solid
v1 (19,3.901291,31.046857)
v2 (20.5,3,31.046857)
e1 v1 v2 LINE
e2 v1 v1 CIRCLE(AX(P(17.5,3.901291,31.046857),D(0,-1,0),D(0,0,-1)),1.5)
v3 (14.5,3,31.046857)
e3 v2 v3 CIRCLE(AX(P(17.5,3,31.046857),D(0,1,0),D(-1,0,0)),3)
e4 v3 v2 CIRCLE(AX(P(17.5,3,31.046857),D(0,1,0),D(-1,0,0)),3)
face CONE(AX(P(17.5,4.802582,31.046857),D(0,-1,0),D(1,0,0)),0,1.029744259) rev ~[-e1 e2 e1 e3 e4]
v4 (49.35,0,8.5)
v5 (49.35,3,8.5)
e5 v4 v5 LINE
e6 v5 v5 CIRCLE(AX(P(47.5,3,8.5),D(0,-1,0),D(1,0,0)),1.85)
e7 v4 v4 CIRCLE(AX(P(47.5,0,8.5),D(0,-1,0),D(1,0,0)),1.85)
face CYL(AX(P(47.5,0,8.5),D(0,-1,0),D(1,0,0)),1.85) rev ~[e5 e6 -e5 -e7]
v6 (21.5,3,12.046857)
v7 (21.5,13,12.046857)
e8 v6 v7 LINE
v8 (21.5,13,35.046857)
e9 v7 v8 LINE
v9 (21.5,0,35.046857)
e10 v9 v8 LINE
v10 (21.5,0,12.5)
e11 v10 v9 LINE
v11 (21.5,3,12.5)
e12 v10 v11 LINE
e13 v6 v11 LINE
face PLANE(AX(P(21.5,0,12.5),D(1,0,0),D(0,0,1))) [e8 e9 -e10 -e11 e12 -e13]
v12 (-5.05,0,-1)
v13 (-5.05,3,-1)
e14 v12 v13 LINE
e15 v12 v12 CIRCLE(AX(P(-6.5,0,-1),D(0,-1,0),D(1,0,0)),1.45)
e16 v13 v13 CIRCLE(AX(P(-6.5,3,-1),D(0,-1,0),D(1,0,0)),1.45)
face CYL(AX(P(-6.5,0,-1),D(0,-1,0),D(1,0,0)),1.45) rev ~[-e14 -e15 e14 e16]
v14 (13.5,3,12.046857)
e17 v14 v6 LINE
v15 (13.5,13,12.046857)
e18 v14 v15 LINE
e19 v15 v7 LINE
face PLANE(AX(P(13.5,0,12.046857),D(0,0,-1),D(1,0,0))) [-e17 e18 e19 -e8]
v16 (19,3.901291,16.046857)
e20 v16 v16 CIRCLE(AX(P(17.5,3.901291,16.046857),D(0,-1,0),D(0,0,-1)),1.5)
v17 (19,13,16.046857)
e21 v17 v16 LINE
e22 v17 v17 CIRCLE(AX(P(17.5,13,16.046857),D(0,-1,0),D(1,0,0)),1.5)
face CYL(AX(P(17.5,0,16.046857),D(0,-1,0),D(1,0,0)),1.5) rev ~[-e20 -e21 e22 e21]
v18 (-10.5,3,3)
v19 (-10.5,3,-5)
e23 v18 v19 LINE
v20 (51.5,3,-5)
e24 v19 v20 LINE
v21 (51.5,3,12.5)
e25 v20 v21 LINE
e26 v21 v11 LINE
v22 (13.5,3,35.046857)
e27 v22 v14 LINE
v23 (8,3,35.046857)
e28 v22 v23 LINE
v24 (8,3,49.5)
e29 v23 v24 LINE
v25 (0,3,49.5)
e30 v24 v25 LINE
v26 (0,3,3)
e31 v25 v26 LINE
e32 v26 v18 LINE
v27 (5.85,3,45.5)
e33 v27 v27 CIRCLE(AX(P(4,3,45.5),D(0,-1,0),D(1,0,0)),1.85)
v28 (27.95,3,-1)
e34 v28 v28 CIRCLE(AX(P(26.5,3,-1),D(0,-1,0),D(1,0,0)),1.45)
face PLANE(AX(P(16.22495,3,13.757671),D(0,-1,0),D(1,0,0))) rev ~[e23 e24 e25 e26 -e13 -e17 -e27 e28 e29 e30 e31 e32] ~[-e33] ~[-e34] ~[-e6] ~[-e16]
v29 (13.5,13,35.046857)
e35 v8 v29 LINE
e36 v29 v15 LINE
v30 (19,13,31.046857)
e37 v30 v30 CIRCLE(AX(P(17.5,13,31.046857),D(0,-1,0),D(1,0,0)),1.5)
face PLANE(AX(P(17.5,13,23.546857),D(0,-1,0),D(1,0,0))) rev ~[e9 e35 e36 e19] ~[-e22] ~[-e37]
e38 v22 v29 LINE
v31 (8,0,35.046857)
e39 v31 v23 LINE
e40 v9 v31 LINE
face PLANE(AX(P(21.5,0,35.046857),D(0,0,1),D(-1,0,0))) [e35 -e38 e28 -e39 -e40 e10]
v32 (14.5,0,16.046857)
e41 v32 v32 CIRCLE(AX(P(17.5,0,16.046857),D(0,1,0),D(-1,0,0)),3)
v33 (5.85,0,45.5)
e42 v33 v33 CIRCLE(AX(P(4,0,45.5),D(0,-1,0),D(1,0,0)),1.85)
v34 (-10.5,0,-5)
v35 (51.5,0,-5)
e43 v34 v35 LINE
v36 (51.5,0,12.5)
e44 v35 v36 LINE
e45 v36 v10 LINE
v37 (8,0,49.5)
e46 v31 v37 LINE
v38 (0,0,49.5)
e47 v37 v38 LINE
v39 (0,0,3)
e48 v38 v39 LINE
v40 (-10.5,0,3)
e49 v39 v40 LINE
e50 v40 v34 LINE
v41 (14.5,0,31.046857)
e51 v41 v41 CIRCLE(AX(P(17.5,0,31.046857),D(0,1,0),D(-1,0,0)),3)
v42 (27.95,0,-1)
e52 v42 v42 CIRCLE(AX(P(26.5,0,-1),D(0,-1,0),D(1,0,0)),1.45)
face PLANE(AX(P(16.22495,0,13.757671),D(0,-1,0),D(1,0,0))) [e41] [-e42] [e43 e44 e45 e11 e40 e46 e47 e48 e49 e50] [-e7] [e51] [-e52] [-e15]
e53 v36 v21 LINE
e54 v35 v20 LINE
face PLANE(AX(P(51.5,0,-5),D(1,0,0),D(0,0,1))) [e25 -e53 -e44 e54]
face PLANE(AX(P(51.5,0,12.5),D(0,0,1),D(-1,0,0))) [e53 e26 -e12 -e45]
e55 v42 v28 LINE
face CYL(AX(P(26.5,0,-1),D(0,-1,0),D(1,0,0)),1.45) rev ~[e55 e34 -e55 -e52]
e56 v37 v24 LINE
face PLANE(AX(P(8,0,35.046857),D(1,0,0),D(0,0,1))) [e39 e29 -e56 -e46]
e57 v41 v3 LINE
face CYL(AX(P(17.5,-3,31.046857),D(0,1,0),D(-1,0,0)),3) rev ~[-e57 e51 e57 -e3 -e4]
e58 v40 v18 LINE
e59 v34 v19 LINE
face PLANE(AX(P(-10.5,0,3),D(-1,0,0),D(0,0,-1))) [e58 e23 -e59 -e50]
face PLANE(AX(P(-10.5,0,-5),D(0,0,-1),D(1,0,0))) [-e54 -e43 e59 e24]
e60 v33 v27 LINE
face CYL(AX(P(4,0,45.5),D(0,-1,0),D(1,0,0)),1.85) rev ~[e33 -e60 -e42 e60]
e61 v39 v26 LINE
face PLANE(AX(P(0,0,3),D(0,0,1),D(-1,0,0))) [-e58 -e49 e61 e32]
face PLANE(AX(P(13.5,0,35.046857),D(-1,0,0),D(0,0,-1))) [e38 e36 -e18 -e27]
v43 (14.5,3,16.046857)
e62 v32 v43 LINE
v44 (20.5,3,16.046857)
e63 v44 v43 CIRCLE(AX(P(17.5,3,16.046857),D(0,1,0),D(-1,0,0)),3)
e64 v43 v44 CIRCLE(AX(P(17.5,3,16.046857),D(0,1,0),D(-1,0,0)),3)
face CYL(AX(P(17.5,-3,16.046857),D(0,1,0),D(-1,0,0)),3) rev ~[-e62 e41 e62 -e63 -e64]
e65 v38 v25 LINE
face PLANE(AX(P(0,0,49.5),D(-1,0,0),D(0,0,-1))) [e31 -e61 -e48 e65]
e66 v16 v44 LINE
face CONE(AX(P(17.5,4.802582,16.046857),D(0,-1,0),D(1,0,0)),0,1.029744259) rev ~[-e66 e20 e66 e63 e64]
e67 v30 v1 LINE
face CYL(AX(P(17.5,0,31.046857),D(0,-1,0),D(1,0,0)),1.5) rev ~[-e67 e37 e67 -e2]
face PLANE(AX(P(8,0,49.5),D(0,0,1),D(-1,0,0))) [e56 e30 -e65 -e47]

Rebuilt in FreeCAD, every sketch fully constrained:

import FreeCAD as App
import Part
import Sketcher
from FreeCAD import Vector

doc = App.newDocument("Part")
body = doc.addObject("PartDesign::Body", "Body")

sketch1 = body.newObject("Sketcher::SketchObject", "Sketch")
sketch1.AttachmentSupport = (doc.getObject("XZ_Plane"), [""])
sketch1.MapMode = "FlatFace"
sketch1.addGeometry([
    Part.LineSegment(Vector(-10.5, -5, 0), Vector(51.5, -5, 0)),
    Part.LineSegment(Vector(51.5, -5, 0), Vector(51.5, 12.5, 0)),
    Part.LineSegment(Vector(51.5, 12.5, 0), Vector(21.5, 12.5, 0)),
    Part.LineSegment(Vector(21.5, 12.5, 0), Vector(21.5, 35.046857, 0)),
    Part.LineSegment(Vector(21.5, 35.046857, 0), Vector(8, 35.046857, 0)),
    Part.LineSegment(Vector(8, 35.046857, 0), Vector(8, 49.5, 0)),
    Part.LineSegment(Vector(8, 49.5, 0), Vector(0, 49.5, 0)),
    Part.LineSegment(Vector(0, 49.5, 0), Vector(0, 3, 0)),
    Part.LineSegment(Vector(0, 3, 0), Vector(-10.5, 3, 0)),
    Part.LineSegment(Vector(-10.5, 3, 0), Vector(-10.5, -5, 0)),
    Part.Circle(Vector(-6.5, -1, 0), Vector(0, 0, 1), 1.45),
    Part.Circle(Vector(17.5, 16.046857, 0), Vector(0, 0, 1), 1.5),
    Part.Circle(Vector(26.5, -1, 0), Vector(0, 0, 1), 1.45),
    Part.Circle(Vector(47.5, 8.5, 0), Vector(0, 0, 1), 1.85),
    Part.Circle(Vector(17.5, 31.046857, 0), Vector(0, 0, 1), 1.5),
    Part.Circle(Vector(4, 45.5, 0), Vector(0, 0, 1), 1.85),
], False)
sketch1.addConstraint([
    Sketcher.Constraint("Coincident", 0, 2, 1, 1),
    Sketcher.Constraint("Coincident", 1, 2, 2, 1),
    Sketcher.Constraint("Coincident", 2, 2, 3, 1),
    Sketcher.Constraint("Coincident", 3, 2, 4, 1),
    Sketcher.Constraint("Coincident", 4, 2, 5, 1),
    Sketcher.Constraint("Coincident", 5, 2, 6, 1),
    Sketcher.Constraint("Coincident", 6, 2, 7, 1),
    Sketcher.Constraint("Coincident", 7, 2, 8, 1),
    Sketcher.Constraint("Coincident", 8, 2, 9, 1),
    Sketcher.Constraint("Coincident", 9, 2, 0, 1),
    Sketcher.Constraint("Horizontal", 0),
    Sketcher.Constraint("Vertical", 1),
    Sketcher.Constraint("Horizontal", 2),
    Sketcher.Constraint("Vertical", 3),
    Sketcher.Constraint("Horizontal", 4),
    Sketcher.Constraint("Vertical", 5),
    Sketcher.Constraint("Horizontal", 6),
    Sketcher.Constraint("Vertical", 7),
    Sketcher.Constraint("Horizontal", 8),
    Sketcher.Constraint("Vertical", 9),
    Sketcher.Constraint("Equal", 10, 12),
    Sketcher.Constraint("Equal", 11, 14),
    Sketcher.Constraint("Equal", 13, 15),
    Sketcher.Constraint("PointOnObject", 6, 2, -2),
    Sketcher.Constraint("Horizontal", 10, 3, 12, 3),
    Sketcher.Constraint("Vertical", 11, 3, 14, 3),
    Sketcher.Constraint("Equal", 6, 9),
    Sketcher.Constraint("Diameter", 11, 3.0),
    Sketcher.Constraint("Diameter", 10, 2.9),
    Sketcher.Constraint("Diameter", 13, 3.7),
    Sketcher.Constraint("DistanceX", 0, 1, 0, 2, 62.0),
    Sketcher.Constraint("DistanceX", 2, 2, 2, 1, 30.0),
    Sketcher.Constraint("DistanceX", 6, 2, 6, 1, 8.0),
    Sketcher.Constraint("DistanceX", 4, 2, 4, 1, 13.5),
    Sketcher.Constraint("DistanceY", 1, 1, 1, 2, 17.5),
    Sketcher.Constraint("DistanceY", 7, 2, 7, 1, 46.5),
    Sketcher.Constraint("DistanceY", 10, 3, -1, 1, 1.0),
    Sketcher.Constraint("DistanceX", -1, 1, 15, 3, 4.0),
    Sketcher.Constraint("DistanceY", 0, 2, -1, 1, 5.0),
    Sketcher.Constraint("DistanceX", 10, 3, 11, 3, 24.0),
    Sketcher.Constraint("DistanceX", 11, 3, 12, 3, 9.0),
    Sketcher.Constraint("DistanceX", 12, 3, 13, 3, 21.0),
    Sketcher.Constraint("DistanceY", 11, 3, 14, 3, 15.0),
    Sketcher.Constraint("DistanceY", 13, 3, 15, 3, 37.0),
    Sketcher.Constraint("DistanceX", 13, 3, 0, 2, 4.0),
    Sketcher.Constraint("DistanceY", 13, 3, 1, 2, 4.0),
    Sketcher.Constraint("DistanceY", 14, 3, 3, 2, 4.0),
    Sketcher.Constraint("DistanceY", 3, 1, 3, 2, 22.546857),
])
pad1 = body.newObject("PartDesign::Pad", "Pad")
pad1.Profile = sketch1
pad1.Length = 3
pad1.Reversed = True

sketch2 = body.newObject("Sketcher::SketchObject", "Sketch001")
sketch2.AttachmentSupport = (doc.getObject("XZ_Plane"), [""])
sketch2.MapMode = "FlatFace"
sketch2.addGeometry([
    Part.LineSegment(Vector(21.5, 12.046857, 0), Vector(21.5, 35.046857, 0)),
    Part.LineSegment(Vector(21.5, 35.046857, 0), Vector(13.5, 35.046857, 0)),
    Part.LineSegment(Vector(13.5, 35.046857, 0), Vector(13.5, 12.046857, 0)),
    Part.LineSegment(Vector(13.5, 12.046857, 0), Vector(21.5, 12.046857, 0)),
    Part.Circle(Vector(17.5, 16.046857, 0), Vector(0, 0, 1), 1.5),
    Part.Circle(Vector(17.5, 31.046857, 0), Vector(0, 0, 1), 1.5),
], False)
sketch2.addConstraint([
    Sketcher.Constraint("Coincident", 0, 2, 1, 1),
    Sketcher.Constraint("Coincident", 1, 2, 2, 1),
    Sketcher.Constraint("Coincident", 2, 2, 3, 1),
    Sketcher.Constraint("Coincident", 3, 2, 0, 1),
    Sketcher.Constraint("Vertical", 0),
    Sketcher.Constraint("Horizontal", 1),
    Sketcher.Constraint("Vertical", 2),
    Sketcher.Constraint("Horizontal", 3),
    Sketcher.Constraint("Equal", 4, 5),
    Sketcher.Constraint("Vertical", 4, 3, 5, 3),
    Sketcher.Constraint("Diameter", 4, 3.0),
    Sketcher.Constraint("DistanceX", 1, 2, 1, 1, 8.0),
    Sketcher.Constraint("DistanceY", 0, 1, 0, 2, 23.0),
    Sketcher.Constraint("DistanceY", 4, 3, 5, 3, 15.0),
    Sketcher.Constraint("DistanceX", 5, 3, 0, 2, 4.0),
    Sketcher.Constraint("DistanceY", 5, 3, 0, 2, 4.0),
    Sketcher.Constraint("DistanceX", -1, 1, 4, 3, 17.5),
    Sketcher.Constraint("DistanceY", -1, 1, 4, 3, 16.046857),
])
pad2 = body.newObject("PartDesign::Pad", "Pad001")
pad2.Profile = sketch2
pad2.Length = 13
pad2.Reversed = True

sketch3 = body.newObject("Sketcher::SketchObject", "Sketch002")
sketch3.AttachmentSupport = (doc.getObject("XZ_Plane"), [""])
sketch3.MapMode = "FlatFace"
sketch3.addGeometry([
    Part.Circle(Vector(17.5, 31.046857, 0), Vector(0, 0, 1), 3),
    Part.Circle(Vector(17.5, 16.046857, 0), Vector(0, 0, 1), 3),
], False)
sketch3.addConstraint([
    Sketcher.Constraint("Equal", 0, 1),
    Sketcher.Constraint("Vertical", 0, 3, 1, 3),
    Sketcher.Constraint("Diameter", 0, 6.0),
    Sketcher.Constraint("DistanceY", 1, 3, 0, 3, 15.0),
    Sketcher.Constraint("DistanceX", -1, 1, 0, 3, 17.5),
    Sketcher.Constraint("DistanceY", -1, 1, 0, 3, 31.046857),
])
doc.recompute()
hole = body.newObject("PartDesign::Hole", "Hole")
hole.Profile = sketch3
hole.ThreadType = "None"
hole.Diameter = 6
hole.DepthType = "Dimension"
hole.Depth = 3
hole.DrillPoint = "Angled"
hole.DrillPointAngle = 118

doc.recompute()
